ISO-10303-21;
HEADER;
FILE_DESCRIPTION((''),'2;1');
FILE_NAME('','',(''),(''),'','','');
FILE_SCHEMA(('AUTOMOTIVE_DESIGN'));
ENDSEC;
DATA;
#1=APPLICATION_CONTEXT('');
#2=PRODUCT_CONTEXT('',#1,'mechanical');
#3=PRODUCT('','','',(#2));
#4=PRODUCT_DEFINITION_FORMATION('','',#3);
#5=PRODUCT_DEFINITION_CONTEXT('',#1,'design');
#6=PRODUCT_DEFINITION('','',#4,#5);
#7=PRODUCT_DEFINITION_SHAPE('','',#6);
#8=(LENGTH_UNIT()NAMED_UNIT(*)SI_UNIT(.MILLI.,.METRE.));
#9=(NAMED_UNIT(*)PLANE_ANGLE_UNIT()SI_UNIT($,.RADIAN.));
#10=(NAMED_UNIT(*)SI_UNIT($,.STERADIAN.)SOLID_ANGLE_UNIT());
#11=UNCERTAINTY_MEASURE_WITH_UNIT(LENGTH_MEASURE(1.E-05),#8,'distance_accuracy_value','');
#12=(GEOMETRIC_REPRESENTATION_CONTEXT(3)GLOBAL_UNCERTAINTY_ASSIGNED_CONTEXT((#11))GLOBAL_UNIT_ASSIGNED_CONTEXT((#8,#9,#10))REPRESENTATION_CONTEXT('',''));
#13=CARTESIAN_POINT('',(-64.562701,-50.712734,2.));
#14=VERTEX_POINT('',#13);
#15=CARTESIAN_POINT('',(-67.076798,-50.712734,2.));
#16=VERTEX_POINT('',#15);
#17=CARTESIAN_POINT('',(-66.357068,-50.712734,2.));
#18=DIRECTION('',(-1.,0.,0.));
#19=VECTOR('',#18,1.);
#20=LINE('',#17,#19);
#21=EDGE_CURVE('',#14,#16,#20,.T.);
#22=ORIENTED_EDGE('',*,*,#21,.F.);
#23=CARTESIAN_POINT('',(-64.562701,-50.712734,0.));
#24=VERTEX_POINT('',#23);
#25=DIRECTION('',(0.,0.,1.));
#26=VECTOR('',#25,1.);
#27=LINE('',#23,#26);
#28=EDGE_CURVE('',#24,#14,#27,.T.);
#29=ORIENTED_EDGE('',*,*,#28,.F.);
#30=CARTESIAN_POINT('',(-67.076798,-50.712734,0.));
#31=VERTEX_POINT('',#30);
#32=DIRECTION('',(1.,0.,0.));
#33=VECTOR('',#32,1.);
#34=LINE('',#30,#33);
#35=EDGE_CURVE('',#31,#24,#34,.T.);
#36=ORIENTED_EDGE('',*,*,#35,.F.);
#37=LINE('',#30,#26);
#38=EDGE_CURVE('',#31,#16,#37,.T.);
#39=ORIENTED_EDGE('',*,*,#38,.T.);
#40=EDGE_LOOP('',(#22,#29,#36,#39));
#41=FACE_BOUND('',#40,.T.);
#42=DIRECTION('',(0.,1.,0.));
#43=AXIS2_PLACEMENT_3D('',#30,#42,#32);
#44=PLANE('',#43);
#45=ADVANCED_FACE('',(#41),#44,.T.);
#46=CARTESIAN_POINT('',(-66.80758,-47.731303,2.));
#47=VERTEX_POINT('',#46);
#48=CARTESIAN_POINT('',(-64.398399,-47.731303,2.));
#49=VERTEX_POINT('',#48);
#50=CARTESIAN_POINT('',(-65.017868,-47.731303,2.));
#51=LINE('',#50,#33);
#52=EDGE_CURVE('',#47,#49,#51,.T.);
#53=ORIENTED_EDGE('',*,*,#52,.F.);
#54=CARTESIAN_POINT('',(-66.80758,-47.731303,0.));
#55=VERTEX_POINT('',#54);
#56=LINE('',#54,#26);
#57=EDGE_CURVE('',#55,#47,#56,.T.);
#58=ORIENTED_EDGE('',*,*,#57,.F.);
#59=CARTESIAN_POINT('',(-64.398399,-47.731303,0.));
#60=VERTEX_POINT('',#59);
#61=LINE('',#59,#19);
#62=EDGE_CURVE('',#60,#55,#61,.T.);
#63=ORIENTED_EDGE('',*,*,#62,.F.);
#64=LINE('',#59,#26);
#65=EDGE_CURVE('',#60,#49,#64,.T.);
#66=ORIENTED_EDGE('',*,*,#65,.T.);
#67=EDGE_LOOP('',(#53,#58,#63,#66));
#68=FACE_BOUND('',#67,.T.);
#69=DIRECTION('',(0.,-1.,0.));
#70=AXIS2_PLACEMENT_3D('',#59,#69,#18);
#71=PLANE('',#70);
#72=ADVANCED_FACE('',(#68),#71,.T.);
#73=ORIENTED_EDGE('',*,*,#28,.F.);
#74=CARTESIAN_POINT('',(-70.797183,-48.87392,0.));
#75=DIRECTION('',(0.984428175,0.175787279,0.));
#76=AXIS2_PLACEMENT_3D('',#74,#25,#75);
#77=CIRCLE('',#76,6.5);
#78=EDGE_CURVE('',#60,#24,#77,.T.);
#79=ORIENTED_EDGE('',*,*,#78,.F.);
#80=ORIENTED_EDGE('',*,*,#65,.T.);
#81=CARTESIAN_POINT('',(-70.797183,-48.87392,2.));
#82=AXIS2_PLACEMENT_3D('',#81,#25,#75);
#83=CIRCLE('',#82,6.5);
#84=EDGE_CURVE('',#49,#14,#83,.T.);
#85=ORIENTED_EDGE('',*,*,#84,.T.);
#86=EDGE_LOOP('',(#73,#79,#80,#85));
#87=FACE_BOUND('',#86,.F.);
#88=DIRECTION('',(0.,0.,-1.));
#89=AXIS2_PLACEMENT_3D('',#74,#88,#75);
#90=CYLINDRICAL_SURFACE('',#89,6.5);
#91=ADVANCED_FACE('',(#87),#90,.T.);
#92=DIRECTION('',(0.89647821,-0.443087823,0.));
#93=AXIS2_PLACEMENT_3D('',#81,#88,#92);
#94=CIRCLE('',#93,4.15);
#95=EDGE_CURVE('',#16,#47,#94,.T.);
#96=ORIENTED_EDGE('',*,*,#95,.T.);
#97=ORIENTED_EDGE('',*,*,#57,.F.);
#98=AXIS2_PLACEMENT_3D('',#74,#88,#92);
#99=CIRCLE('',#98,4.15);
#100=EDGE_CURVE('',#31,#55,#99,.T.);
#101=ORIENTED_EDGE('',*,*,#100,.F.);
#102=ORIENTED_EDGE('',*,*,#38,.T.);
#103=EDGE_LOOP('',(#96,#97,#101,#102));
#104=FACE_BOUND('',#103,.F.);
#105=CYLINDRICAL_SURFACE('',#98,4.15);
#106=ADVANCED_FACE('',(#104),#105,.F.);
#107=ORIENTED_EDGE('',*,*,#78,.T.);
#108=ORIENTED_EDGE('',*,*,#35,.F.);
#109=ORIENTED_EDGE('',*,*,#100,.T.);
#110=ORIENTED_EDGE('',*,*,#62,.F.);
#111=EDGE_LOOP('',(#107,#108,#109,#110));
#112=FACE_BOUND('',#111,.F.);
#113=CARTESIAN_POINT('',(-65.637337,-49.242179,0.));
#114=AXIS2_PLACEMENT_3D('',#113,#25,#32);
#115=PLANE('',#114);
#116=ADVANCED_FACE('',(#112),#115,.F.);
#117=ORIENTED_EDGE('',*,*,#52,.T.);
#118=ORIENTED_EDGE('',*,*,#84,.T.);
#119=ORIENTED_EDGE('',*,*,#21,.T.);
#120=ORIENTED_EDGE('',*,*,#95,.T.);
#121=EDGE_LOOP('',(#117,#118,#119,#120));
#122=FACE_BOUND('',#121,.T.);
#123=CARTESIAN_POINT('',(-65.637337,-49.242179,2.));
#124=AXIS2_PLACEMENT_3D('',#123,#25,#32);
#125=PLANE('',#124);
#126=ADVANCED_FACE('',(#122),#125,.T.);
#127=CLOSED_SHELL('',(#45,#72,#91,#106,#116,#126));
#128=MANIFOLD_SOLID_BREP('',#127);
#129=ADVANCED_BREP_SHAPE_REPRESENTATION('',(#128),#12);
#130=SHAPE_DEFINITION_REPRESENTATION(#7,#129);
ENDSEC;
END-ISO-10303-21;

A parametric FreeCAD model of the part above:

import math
import FreeCAD as App
import Part
import Sketcher

doc = App.newDocument("Part")
body = doc.addObject("PartDesign::Body", "Body")

# Sketch on XY plane
sketch1 = body.newObject("Sketcher::SketchObject", "Sketch")
sketch1.AttachmentSupport = (doc.getObject("XY_Plane"), [""])
sketch1.MapMode = "FlatFace"
sketch1.addGeometry([
    Part.ArcOfCircle(Part.Circle(App.Vector(-70.8, -48.9, 0), App.Vector(0, 0, 1), 6.5), math.radians(-16.43), math.radians(0)),  # 0
    Part.ArcOfCircle(Part.Circle(App.Vector(-70.8, -48.9, 0), App.Vector(0, 0, 1), 6.5), math.radians(0), math.radians(10.12)),  # 1
    Part.ArcOfCircle(Part.Circle(App.Vector(-70.8, -48.9, 0), App.Vector(0, 0, 1), 6.5), math.radians(10), math.radians(344)),  # 2
    Part.ArcOfCircle(Part.Circle(App.Vector(-70.8, -48.9, 0), App.Vector(0, 0, 1), 4.2), math.radians(0), math.radians(15.98)),  # 3
    Part.ArcOfCircle(Part.Circle(App.Vector(-70.8, -48.9, 0), App.Vector(0, 0, 1), 4.1), math.radians(-26), math.radians(0)),  # 4
    Part.ArcOfCircle(Part.Circle(App.Vector(-70.8, -48.9, 0), App.Vector(0, 0, 1), 4.2), math.radians(16), math.radians(334)),  # 5
], False)
sketch1.addConstraint([
    Sketcher.Constraint("Tangent", 0, 2, 1, 1),
    Sketcher.Constraint("Tangent", 1, 2, 2, 1),
    Sketcher.Constraint("Tangent", 2, 2, 0, 1),
    Sketcher.Constraint("Tangent", 3, 1, 4, 2),
    Sketcher.Constraint("Tangent", 4, 1, 5, 2),
    Sketcher.Constraint("Tangent", 5, 1, 3, 2),
    Sketcher.Constraint("Coincident", 3, 3, 0, 3),
    Sketcher.Constraint("Horizontal", 5, 3, 0, 2),
    Sketcher.Constraint("Horizontal", 0, 2, 3, 1),
    Sketcher.Constraint("Horizontal", 2, 2, 4, 1),
    Sketcher.Constraint("Horizontal", 1, 2, 5, 1),
    Sketcher.Constraint("Radius", 0, 6.5),
    Sketcher.Constraint("Radius", 3, 4.15),
    Sketcher.Constraint("DistanceX", 1, 2, -1, 1, 64.398399),
    Sketcher.Constraint("DistanceX", 2, 2, -1, 1, 64.562701),
    Sketcher.Constraint("DistanceX", 4, 1, -1, 1, 67.076798),
    Sketcher.Constraint("DistanceY", 0, 3, -1, 1, 48.87392),
])
pad1 = body.newObject("PartDesign::Pad", "Pad")
pad1.Profile = sketch1
pad1.Length = 2

# Sketch on XY plane
sketch2 = body.newObject("Sketcher::SketchObject", "Sketch001")
sketch2.AttachmentSupport = (doc.getObject("XY_Plane"), [""])
sketch2.MapMode = "FlatFace"
sketch2.addGeometry([
    Part.ArcOfCircle(Part.Circle(App.Vector(-70.8, -48.9, 0), App.Vector(0, 0, 1), 4.2), math.radians(0), math.radians(15.98)),  # 0
    Part.ArcOfCircle(Part.Circle(App.Vector(-70.8, -48.9, 0), App.Vector(0, 0, 1), 4.1), math.radians(-26), math.radians(0)),  # 1
    Part.LineSegment(App.Vector(-67.1, -50.7, 0), App.Vector(-64.6, -50.7, 0)),  # 2
    Part.ArcOfCircle(Part.Circle(App.Vector(-70.8, -48.9, 0), App.Vector(0, 0, 1), 6.5), math.radians(-16.43), math.radians(0)),  # 3
    Part.ArcOfCircle(Part.Circle(App.Vector(-70.8, -48.9, 0), App.Vector(0, 0, 1), 6.5), math.radians(0), math.radians(10.12)),  # 4
    Part.LineSegment(App.Vector(-64.4, -47.7, 0), App.Vector(-66.8, -47.7, 0)),  # 5
], False)
sketch2.addConstraint([
    Sketcher.Constraint("Tangent", 0, 1, 1, 2),
    Sketcher.Constraint("Coincident", 1, 1, 2, 1),
    Sketcher.Constraint("Coincident", 2, 2, 3, 1),
    Sketcher.Constraint("Tangent", 3, 2, 4, 1),
    Sketcher.Constraint("Coincident", 4, 2, 5, 1),
    Sketcher.Constraint("Coincident", 5, 2, 0, 2),
    Sketcher.Constraint("Horizontal", 2),
    Sketcher.Constraint("Horizontal", 5),
    Sketcher.Constraint("Coincident", 3, 3, 0, 3),
    Sketcher.Constraint("Equal", 0, 1),
    Sketcher.Constraint("Equal", 3, 4),
    Sketcher.Constraint("Horizontal", 4, 3, 0, 1),
    Sketcher.Constraint("Horizontal", 0, 1, 3, 2),
    Sketcher.Constraint("Radius", 3, 6.5),
    Sketcher.Constraint("Radius", 0, 4.15),
    Sketcher.Constraint("DistanceX", 5, 2, 5, 1, 2.409181),
    Sketcher.Constraint("DistanceX", 1, 1, -1, 1, 67.076798),
    Sketcher.Constraint("DistanceX", 2, 2, -1, 1, 64.562701),
    Sketcher.Constraint("DistanceY", 0, 3, -1, 1, 48.87392),
])
pocket1 = body.newObject("PartDesign::Pocket", "Pocket")
pocket1.Profile = sketch2
pocket1.Length = 25
pocket1.Reversed = True

doc.recompute()
